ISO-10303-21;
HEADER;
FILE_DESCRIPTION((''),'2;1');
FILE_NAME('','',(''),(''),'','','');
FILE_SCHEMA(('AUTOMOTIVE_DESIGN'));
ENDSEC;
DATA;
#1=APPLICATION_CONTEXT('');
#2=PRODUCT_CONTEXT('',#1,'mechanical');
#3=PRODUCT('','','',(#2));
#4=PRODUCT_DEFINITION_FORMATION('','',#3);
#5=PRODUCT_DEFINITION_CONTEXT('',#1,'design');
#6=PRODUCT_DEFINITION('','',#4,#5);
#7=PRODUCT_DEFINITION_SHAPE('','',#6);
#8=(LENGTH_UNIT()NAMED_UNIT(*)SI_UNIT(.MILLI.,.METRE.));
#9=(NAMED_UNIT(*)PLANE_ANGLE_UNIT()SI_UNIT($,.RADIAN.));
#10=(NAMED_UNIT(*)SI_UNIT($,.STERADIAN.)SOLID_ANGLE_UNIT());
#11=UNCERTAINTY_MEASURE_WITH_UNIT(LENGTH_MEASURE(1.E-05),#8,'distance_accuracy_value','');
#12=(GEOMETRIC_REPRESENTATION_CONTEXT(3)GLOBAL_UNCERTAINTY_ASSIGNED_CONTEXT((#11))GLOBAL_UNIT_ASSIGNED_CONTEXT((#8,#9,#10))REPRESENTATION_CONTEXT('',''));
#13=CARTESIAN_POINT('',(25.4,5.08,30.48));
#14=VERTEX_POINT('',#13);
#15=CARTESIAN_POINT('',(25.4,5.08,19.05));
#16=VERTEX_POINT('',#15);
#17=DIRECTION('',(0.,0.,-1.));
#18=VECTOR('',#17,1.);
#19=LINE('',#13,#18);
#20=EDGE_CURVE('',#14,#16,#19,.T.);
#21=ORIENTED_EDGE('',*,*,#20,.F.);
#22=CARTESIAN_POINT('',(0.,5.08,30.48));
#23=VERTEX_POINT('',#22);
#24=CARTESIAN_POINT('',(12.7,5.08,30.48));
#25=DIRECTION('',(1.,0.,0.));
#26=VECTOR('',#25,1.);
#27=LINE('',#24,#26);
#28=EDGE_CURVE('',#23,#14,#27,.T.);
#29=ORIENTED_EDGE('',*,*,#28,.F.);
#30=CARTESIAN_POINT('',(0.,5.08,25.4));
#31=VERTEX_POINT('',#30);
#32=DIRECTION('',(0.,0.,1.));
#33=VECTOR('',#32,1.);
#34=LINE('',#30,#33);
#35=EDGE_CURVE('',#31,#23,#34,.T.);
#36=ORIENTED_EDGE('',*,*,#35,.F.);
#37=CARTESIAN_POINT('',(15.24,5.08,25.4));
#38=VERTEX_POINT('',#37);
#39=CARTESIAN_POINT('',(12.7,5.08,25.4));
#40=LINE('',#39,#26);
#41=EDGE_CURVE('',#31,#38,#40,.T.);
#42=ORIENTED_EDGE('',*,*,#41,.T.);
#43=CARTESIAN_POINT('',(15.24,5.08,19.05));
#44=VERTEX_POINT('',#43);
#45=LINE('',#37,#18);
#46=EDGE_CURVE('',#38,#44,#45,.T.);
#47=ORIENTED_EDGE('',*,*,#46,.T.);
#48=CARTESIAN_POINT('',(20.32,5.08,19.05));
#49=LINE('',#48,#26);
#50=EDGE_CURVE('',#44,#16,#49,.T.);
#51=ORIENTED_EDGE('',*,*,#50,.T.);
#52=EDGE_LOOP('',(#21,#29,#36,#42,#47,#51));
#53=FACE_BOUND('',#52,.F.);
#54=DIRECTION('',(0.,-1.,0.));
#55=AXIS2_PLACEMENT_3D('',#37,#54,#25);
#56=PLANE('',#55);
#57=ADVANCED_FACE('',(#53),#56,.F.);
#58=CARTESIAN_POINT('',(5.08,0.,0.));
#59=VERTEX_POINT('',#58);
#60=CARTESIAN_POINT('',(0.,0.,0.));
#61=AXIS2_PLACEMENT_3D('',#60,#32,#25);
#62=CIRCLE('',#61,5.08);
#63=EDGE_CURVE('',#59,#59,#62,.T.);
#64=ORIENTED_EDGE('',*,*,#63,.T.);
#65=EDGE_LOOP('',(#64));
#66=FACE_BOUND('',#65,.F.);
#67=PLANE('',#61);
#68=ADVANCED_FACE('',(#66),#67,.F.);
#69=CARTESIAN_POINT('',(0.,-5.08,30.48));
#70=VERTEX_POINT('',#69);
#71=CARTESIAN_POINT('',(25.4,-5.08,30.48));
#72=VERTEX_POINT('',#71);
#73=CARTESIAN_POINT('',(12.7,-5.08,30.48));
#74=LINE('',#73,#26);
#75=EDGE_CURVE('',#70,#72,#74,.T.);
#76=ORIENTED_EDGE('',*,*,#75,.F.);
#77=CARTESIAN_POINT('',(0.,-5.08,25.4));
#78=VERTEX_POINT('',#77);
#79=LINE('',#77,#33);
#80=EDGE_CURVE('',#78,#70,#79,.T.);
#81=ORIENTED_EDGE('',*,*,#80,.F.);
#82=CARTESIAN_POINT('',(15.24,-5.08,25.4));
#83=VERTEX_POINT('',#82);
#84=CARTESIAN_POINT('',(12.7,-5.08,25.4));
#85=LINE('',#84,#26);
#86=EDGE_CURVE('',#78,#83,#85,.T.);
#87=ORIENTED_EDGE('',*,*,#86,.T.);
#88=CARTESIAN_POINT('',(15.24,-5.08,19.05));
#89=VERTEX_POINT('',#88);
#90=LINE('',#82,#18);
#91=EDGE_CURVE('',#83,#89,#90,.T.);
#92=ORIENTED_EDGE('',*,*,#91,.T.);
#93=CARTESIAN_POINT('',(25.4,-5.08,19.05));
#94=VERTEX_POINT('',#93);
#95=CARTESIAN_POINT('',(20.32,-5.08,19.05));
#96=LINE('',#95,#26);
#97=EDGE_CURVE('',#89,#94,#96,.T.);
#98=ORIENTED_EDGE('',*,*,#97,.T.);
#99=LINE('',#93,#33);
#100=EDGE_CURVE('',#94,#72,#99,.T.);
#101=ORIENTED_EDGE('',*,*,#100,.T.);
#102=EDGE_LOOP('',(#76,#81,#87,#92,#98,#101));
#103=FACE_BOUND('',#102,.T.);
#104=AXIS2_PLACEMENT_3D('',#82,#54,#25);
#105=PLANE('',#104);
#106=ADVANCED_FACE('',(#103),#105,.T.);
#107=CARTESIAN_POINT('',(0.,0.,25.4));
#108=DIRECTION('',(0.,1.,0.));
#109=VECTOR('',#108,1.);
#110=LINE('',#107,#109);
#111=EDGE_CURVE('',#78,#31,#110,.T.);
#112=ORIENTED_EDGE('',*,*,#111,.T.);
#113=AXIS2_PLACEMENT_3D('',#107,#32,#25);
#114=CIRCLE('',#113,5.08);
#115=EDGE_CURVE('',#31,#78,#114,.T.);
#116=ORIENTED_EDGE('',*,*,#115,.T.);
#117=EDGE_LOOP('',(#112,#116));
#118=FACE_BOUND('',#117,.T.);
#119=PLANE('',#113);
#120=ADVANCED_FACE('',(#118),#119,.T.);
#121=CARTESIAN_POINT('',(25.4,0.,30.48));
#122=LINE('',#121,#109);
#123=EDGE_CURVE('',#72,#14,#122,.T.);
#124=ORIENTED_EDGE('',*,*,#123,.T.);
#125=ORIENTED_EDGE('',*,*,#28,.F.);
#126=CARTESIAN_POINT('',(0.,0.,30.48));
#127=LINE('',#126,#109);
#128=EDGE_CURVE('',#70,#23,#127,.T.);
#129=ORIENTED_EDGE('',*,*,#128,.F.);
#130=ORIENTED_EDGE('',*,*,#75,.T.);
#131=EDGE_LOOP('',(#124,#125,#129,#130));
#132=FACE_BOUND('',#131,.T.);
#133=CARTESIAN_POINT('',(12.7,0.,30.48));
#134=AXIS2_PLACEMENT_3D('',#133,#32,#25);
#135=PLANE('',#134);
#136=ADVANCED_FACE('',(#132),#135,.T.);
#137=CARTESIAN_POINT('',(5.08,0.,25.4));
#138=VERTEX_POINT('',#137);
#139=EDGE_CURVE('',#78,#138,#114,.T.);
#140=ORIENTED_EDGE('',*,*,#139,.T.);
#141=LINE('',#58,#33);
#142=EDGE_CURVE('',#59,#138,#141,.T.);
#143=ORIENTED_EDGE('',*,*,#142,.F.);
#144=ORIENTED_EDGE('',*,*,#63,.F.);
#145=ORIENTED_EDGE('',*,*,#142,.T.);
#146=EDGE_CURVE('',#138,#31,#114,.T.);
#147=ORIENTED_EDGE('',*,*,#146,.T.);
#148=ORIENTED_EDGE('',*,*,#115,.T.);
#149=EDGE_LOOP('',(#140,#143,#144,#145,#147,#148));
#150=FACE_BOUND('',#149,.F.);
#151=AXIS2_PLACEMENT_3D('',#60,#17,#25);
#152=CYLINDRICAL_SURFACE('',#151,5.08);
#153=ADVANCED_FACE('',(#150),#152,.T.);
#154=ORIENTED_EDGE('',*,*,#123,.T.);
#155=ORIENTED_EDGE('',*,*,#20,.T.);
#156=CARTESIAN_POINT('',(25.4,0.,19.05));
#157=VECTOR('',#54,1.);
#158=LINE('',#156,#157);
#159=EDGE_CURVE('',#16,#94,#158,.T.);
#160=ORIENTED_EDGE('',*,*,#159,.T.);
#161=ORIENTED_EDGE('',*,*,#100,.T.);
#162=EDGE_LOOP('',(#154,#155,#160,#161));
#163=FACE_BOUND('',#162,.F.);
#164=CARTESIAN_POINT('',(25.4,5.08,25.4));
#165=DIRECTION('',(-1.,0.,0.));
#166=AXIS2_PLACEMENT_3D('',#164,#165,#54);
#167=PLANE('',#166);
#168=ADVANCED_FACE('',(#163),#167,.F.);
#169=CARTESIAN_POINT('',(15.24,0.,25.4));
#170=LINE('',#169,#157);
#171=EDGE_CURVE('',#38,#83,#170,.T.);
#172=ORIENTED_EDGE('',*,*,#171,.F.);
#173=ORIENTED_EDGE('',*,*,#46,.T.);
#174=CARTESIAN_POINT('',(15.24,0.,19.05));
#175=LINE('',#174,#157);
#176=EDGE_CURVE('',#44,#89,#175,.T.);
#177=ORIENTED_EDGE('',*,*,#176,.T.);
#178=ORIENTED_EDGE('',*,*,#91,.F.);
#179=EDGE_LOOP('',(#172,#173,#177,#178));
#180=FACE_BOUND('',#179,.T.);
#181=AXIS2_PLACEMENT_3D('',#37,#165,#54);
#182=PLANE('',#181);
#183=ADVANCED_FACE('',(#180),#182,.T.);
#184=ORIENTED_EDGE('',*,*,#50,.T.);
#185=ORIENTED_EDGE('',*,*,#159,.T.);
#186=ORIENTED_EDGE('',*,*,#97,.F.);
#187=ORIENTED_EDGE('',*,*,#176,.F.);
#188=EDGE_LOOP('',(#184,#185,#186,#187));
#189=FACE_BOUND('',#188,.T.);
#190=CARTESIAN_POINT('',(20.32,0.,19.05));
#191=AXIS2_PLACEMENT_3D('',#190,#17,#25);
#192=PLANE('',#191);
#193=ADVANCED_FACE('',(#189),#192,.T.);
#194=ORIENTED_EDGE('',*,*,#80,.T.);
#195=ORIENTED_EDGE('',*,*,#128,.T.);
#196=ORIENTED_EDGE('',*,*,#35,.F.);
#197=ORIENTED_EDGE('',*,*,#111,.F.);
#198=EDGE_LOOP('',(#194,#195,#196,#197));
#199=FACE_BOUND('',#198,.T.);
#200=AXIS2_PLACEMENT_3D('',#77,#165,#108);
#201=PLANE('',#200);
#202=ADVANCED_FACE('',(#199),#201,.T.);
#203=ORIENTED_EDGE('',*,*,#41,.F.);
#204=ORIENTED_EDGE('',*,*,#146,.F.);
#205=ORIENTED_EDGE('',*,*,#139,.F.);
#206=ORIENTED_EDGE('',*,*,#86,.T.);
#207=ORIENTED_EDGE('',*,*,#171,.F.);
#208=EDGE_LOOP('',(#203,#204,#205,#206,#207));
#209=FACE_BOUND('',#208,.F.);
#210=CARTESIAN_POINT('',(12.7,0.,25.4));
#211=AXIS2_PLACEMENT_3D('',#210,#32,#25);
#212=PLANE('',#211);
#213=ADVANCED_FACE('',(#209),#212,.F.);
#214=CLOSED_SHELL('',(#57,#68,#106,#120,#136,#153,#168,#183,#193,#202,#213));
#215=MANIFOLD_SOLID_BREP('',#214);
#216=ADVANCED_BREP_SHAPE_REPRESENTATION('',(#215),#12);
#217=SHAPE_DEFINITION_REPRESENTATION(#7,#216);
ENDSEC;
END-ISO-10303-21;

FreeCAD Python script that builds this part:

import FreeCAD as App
import Part
import Sketcher
Q = App.Units.Quantity


def add_polygon(sketch, points):
    """Adds a closed chain of lines whose ends are joined by coincident constraints."""
    first, n = sketch.GeometryCount, len(points)
    for a, b in zip(points, points[1:] + points[:1]):
        sketch.addGeometry(Part.LineSegment(App.Vector(*a, 0), App.Vector(*b, 0)), False)
    for i in range(n):
        sketch.addConstraint(Sketcher.Constraint("Coincident", first + i, 2, first + (i + 1) % n, 1))

doc = App.newDocument("Part")
body = doc.addObject("PartDesign::Body", "Body")

# Sketch on XY plane
sketch1 = body.newObject("Sketcher::SketchObject", "Sketch")
sketch1.AttachmentSupport = (doc.getObject("XY_Plane"), [""])
sketch1.MapMode = "FlatFace"
sketch1.addGeometry(Part.Circle(App.Vector(0, 0, 0), App.Vector(0, 0, 1), 5), False)
sketch1.addConstraint([
    Sketcher.Constraint("Coincident", 0, 3, -1, 1),
    Sketcher.Constraint("Diameter", 0, Q("0.4 in")),
])
pad1 = body.newObject("PartDesign::Pad", "Pad")
pad1.Profile = sketch1
pad1.Length = Q("1 in")

# Sketch on XY plane
sketch2 = body.newObject("Sketcher::SketchObject", "Sketch001")
sketch2.AttachmentSupport = (doc.getObject("XY_Plane"), [""])
sketch2.MapMode = "FlatFace"
sketch2.AttachmentOffset = App.Placement(App.Vector(0, 0, 1 * 25.4), App.Rotation())
add_polygon(sketch2, [(0, 5), (0, -5), (25, -5), (25, 5)])  # lines 0-3
sketch2.addConstraint([
    Sketcher.Constraint("Vertical", 0),
    Sketcher.Constraint("Horizontal", 1),
    Sketcher.Constraint("Vertical", 2),
    Sketcher.Constraint("Horizontal", 3),
    Sketcher.Constraint("Symmetric", 0, 2, 3, 2, -1, 1),
    Sketcher.Constraint("DistanceX", 1, 1, 1, 2, Q("1 in")),
    Sketcher.Constraint("DistanceY", 0, 2, 0, 1, Q("0.4 in")),
])
pad2 = body.newObject("PartDesign::Pad", "Pad001")
pad2.Profile = sketch2
pad2.Length = Q("0.2 in")

# Sketch on XY plane
sketch3 = body.newObject("Sketcher::SketchObject", "Sketch002")
sketch3.AttachmentSupport = (doc.getObject("XY_Plane"), [""])
sketch3.MapMode = "FlatFace"
sketch3.AttachmentOffset = App.Placement(App.Vector(0, 0, 1 * 25.4), App.Rotation())
add_polygon(sketch3, [(15, -5), (15, 5), (25, 5), (25, -5)])  # lines 0-3
sketch3.addConstraint([
    Sketcher.Constraint("Vertical", 0),
    Sketcher.Constraint("Horizontal", 1),
    Sketcher.Constraint("Vertical", 2),
    Sketcher.Constraint("Horizontal", 3),
    Sketcher.Constraint("Equal", 3, 0),
    Sketcher.Constraint("DistanceX", 1, 1, 1, 2, Q("0.4 in")),
    Sketcher.Constraint("DistanceX", -1, 1, 1, 2, Q("1 in")),
    Sketcher.Constraint("DistanceY", -1, 1, 0, 2, Q("0.2 in")),
])
pad3 = body.newObject("PartDesign::Pad", "Pad002")
pad3.Profile = sketch3
pad3.Length = Q("0.25 in")
pad3.Reversed = True

doc.recompute()
